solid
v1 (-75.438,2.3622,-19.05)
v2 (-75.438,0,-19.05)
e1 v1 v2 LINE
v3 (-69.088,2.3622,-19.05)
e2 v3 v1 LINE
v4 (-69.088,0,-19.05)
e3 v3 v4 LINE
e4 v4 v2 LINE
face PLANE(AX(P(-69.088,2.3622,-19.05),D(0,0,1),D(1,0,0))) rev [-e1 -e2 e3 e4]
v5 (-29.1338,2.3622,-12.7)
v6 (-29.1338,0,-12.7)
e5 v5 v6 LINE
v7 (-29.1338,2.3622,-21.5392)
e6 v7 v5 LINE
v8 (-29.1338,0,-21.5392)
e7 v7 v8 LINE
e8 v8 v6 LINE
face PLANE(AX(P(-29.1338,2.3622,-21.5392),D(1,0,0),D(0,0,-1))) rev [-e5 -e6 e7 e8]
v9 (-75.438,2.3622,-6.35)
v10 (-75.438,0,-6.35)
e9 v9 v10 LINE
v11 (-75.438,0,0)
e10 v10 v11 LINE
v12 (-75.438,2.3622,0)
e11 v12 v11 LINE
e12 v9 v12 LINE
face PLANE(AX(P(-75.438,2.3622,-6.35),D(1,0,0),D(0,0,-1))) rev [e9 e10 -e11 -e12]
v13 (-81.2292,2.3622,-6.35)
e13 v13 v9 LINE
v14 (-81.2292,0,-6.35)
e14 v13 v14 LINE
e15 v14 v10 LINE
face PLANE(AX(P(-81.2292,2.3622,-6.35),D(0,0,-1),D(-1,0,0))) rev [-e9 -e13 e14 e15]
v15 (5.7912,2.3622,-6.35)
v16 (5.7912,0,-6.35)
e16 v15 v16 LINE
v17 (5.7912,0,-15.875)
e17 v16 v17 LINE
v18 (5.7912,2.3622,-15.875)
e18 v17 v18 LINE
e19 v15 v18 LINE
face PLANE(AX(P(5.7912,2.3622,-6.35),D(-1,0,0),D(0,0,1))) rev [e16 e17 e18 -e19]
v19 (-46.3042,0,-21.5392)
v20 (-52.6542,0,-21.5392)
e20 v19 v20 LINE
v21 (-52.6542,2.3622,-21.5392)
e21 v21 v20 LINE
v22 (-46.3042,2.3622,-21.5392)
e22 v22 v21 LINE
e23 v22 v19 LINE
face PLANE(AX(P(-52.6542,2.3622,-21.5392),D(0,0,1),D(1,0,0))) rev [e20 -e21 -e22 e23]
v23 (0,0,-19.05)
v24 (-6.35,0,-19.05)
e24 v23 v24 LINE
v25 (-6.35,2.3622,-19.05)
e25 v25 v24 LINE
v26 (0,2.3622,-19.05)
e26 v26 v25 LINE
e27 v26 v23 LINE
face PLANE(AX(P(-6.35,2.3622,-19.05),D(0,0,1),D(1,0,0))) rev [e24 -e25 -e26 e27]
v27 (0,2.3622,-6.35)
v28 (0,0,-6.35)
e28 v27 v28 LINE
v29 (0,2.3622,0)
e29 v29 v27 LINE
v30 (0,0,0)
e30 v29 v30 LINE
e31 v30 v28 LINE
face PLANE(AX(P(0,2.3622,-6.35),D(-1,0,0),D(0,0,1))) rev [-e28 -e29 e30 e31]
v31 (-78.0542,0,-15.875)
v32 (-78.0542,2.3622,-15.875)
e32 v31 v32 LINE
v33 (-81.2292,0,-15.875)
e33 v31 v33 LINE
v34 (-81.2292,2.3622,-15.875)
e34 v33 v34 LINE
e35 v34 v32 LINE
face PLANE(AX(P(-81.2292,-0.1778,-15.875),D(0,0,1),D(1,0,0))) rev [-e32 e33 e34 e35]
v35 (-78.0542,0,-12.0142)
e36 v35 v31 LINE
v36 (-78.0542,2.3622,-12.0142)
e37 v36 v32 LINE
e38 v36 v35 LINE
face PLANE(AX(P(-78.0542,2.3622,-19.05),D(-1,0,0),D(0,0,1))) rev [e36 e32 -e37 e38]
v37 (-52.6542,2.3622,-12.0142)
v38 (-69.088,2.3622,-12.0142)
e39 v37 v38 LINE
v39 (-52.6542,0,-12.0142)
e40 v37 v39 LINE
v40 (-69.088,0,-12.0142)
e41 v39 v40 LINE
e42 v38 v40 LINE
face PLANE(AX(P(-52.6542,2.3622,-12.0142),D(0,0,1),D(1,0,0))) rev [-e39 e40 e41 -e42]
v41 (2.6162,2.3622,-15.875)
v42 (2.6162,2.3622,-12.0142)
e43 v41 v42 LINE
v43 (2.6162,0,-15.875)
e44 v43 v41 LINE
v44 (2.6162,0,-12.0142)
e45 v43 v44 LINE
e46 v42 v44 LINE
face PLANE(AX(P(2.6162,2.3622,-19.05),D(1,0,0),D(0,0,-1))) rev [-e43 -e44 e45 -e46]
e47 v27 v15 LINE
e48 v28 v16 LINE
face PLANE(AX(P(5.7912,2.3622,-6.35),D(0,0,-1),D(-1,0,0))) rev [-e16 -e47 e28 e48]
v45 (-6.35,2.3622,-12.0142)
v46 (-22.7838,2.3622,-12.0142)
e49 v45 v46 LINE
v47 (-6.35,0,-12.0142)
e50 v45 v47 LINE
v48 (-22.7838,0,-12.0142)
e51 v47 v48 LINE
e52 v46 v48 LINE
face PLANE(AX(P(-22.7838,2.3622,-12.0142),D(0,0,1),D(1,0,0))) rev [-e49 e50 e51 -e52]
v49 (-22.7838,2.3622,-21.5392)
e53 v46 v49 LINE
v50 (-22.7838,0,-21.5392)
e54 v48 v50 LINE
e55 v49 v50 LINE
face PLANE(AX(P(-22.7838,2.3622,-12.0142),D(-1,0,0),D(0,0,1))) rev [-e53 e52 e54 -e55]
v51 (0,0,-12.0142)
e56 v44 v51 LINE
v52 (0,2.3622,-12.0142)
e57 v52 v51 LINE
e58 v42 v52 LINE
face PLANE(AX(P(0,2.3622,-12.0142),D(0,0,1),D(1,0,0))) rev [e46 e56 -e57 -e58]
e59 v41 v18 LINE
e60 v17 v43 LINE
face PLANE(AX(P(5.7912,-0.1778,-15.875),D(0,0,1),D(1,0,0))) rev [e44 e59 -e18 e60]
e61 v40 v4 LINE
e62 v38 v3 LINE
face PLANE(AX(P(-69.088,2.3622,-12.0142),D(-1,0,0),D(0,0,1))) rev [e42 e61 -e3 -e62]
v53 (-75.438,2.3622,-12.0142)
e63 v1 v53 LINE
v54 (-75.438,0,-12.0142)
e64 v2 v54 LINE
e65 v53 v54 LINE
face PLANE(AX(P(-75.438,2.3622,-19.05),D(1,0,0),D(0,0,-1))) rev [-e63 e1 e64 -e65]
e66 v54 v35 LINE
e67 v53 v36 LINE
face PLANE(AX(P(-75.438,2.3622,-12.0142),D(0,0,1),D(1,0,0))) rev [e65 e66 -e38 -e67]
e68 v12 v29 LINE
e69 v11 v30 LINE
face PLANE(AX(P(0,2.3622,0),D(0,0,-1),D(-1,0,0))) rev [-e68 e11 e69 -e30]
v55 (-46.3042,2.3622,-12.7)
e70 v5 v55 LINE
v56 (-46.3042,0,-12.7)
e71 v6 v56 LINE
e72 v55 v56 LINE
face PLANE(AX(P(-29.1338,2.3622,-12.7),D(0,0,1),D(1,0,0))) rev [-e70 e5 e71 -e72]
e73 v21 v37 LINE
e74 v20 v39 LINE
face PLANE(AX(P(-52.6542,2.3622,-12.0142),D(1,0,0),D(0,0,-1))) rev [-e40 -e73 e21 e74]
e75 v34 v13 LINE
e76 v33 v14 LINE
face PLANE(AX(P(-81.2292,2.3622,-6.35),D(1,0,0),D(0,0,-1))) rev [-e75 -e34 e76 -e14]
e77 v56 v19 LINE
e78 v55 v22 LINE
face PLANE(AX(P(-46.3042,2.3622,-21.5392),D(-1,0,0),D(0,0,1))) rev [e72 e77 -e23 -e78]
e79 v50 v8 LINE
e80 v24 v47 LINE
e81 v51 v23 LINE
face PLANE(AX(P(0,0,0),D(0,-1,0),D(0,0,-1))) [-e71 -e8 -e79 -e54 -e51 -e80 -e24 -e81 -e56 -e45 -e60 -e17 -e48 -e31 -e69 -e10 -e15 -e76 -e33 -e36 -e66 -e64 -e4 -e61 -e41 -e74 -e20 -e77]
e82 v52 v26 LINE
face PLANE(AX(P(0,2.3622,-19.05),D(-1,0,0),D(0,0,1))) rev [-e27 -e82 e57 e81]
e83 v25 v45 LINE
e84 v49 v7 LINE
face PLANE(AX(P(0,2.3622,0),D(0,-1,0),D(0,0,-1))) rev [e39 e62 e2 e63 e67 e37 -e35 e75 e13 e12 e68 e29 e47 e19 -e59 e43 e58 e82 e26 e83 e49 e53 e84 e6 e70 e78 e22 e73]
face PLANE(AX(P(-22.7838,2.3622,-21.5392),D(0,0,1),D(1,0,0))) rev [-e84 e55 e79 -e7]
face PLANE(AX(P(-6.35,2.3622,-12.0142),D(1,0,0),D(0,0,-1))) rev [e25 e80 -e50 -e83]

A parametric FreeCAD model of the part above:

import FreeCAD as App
import Part
import Sketcher

V = App.Vector
Q = App.Units.Quantity

doc = App.newDocument("Part")
params = doc.addObject("Spreadsheet::Sheet", "Params")
for row, (alias, value) in enumerate([
    ("sketch1_height", "0.5 in"),
    ("sketch1_width", "0.25 in"),
    ("sketch1_width2", "2.97 in"),
    ("sketch1_width3", "0.125 in"),
    ("sketch1_width4", "0.103 in"),
    ("pad1_length", "0.093 in"),
    ("sketch2_width", "0.125 in"),
    ("pocket1_length", "0.1 in"),
], start=1):
    params.set(f"A{row}", alias)
    params.set(f"B{row}", "=" + value)
    params.setAlias(f"B{row}", alias)

body = doc.addObject("PartDesign::Body", "Body")

sketch1 = body.newObject("Sketcher::SketchObject", "Sketch")
sketch1.AttachmentSupport = (doc.getObject("XZ_Plane"), [""])
sketch1.MapMode = "FlatFace"
sketch1.addGeometry([
    Part.LineSegment(V(5.8, -6.3, 0), V(5.8, -19.1, 0)),
    Part.LineSegment(V(5.8, -19.1, 0), V(2.6, -19.1, 0)),
    Part.LineSegment(V(2.6, -19.1, 0), V(2.6, -12, 0)),
    Part.LineSegment(V(2.6, -12, 0), V(0, -12, 0)),
    Part.LineSegment(V(0, -12, 0), V(0, -19.1, 0)),
    Part.LineSegment(V(0, -19.1, 0), V(-6.3, -19.1, 0)),
    Part.LineSegment(V(-6.3, -19.1, 0), V(-6.3, -12, 0)),
    Part.LineSegment(V(-6.3, -12, 0), V(-22.8, -12, 0)),
    Part.LineSegment(V(-22.8, -12, 0), V(-22.8, -21.5, 0)),
    Part.LineSegment(V(-22.8, -21.5, 0), V(-29.1, -21.5, 0)),
    Part.LineSegment(V(-29.1, -21.5, 0), V(-29.1, -12.7, 0)),
    Part.LineSegment(V(-29.1, -12.7, 0), V(-46.3, -12.7, 0)),
    Part.LineSegment(V(-46.3, -12.7, 0), V(-46.3, -21.5, 0)),
    Part.LineSegment(V(-46.3, -21.5, 0), V(-52.7, -21.5, 0)),
    Part.LineSegment(V(-52.7, -21.5, 0), V(-52.7, -12, 0)),
    Part.LineSegment(V(-52.7, -12, 0), V(-69.1, -12, 0)),
    Part.LineSegment(V(-69.1, -12, 0), V(-69.1, -19.1, 0)),
    Part.LineSegment(V(-69.1, -19.1, 0), V(-75.4, -19.1, 0)),
    Part.LineSegment(V(-75.4, -19.1, 0), V(-75.4, -12, 0)),
    Part.LineSegment(V(-75.4, -12, 0), V(-78.1, -12, 0)),
    Part.LineSegment(V(-78.1, -12, 0), V(-78.1, -19.1, 0)),
    Part.LineSegment(V(-78.1, -19.1, 0), V(-81.2, -19.1, 0)),
    Part.LineSegment(V(-81.2, -19.1, 0), V(-81.2, -6.3, 0)),
    Part.LineSegment(V(-81.2, -6.3, 0), V(-75.4, -6.3, 0)),
    Part.LineSegment(V(-75.4, -6.3, 0), V(-75.4, 0, 0)),
    Part.LineSegment(V(-75.4, 0, 0), V(0, 0, 0)),
    Part.LineSegment(V(0, 0, 0), V(0, -6.3, 0)),
    Part.LineSegment(V(0, -6.3, 0), V(5.8, -6.3, 0)),
], False)
sketch1.addConstraint([
    Sketcher.Constraint("Coincident", 0, 2, 1, 1),
    Sketcher.Constraint("Coincident", 1, 2, 2, 1),
    Sketcher.Constraint("Coincident", 2, 2, 3, 1),
    Sketcher.Constraint("Coincident", 3, 2, 4, 1),
    Sketcher.Constraint("Coincident", 4, 2, 5, 1),
    Sketcher.Constraint("Coincident", 5, 2, 6, 1),
    Sketcher.Constraint("Coincident", 6, 2, 7, 1),
    Sketcher.Constraint("Coincident", 7, 2, 8, 1),
    Sketcher.Constraint("Coincident", 8, 2, 9, 1),
    Sketcher.Constraint("Coincident", 9, 2, 10, 1),
    Sketcher.Constraint("Coincident", 10, 2, 11, 1),
    Sketcher.Constraint("Coincident", 11, 2, 12, 1),
    Sketcher.Constraint("Coincident", 12, 2, 13, 1),
    Sketcher.Constraint("Coincident", 13, 2, 14, 1),
    Sketcher.Constraint("Coincident", 14, 2, 15, 1),
    Sketcher.Constraint("Coincident", 15, 2, 16, 1),
    Sketcher.Constraint("Coincident", 16, 2, 17, 1),
    Sketcher.Constraint("Coincident", 17, 2, 18, 1),
    Sketcher.Constraint("Coincident", 18, 2, 19, 1),
    Sketcher.Constraint("Coincident", 19, 2, 20, 1),
    Sketcher.Constraint("Coincident", 20, 2, 21, 1),
    Sketcher.Constraint("Coincident", 21, 2, 22, 1),
    Sketcher.Constraint("Coincident", 22, 2, 23, 1),
    Sketcher.Constraint("Coincident", 23, 2, 24, 1),
    Sketcher.Constraint("Coincident", 24, 2, 25, 1),
    Sketcher.Constraint("Coincident", 25, 2, 26, 1),
    Sketcher.Constraint("Coincident", 26, 2, 27, 1),
    Sketcher.Constraint("Coincident", 27, 2, 0, 1),
    Sketcher.Constraint("Vertical", 0),
    Sketcher.Constraint("Horizontal", 1),
    Sketcher.Constraint("Vertical", 2),
    Sketcher.Constraint("Horizontal", 3),
    Sketcher.Constraint("Vertical", 4),
    Sketcher.Constraint("Horizontal", 5),
    Sketcher.Constraint("Vertical", 6),
    Sketcher.Constraint("Horizontal", 7),
    Sketcher.Constraint("Vertical", 8),
    Sketcher.Constraint("Horizontal", 9),
    Sketcher.Constraint("Vertical", 10),
    Sketcher.Constraint("Horizontal", 11),
    Sketcher.Constraint("Vertical", 12),
    Sketcher.Constraint("Horizontal", 13),
    Sketcher.Constraint("Vertical", 14),
    Sketcher.Constraint("Horizontal", 15),
    Sketcher.Constraint("Vertical", 16),
    Sketcher.Constraint("Horizontal", 17),
    Sketcher.Constraint("Vertical", 18),
    Sketcher.Constraint("Horizontal", 19),
    Sketcher.Constraint("Vertical", 20),
    Sketcher.Constraint("Horizontal", 21),
    Sketcher.Constraint("Vertical", 22),
    Sketcher.Constraint("Horizontal", 23),
    Sketcher.Constraint("Vertical", 24),
    Sketcher.Constraint("Horizontal", 25),
    Sketcher.Constraint("Vertical", 26),
    Sketcher.Constraint("Horizontal", 27),
    Sketcher.Constraint("Coincident", 25, 2, -1, 1),
    Sketcher.Constraint("PointOnObject", 3, 2, -2),
    Sketcher.Constraint("Horizontal", 1, 2, 4, 2),
    Sketcher.Constraint("Horizontal", 3, 2, 6, 2),
    Sketcher.Constraint("Horizontal", 9, 2, 12, 2),
    Sketcher.Constraint("Horizontal", 7, 2, 14, 2),
    Sketcher.Constraint("Horizontal", 5, 2, 16, 2),
    Sketcher.Constraint("Horizontal", 15, 2, 18, 2),
    Sketcher.Constraint("Horizontal", 17, 2, 20, 2),
    Sketcher.Constraint("Horizontal", 23, 2, 26, 2),
    Sketcher.Constraint("Vertical", 18, 2, 23, 2),
    Sketcher.Constraint("Equal", 5, 9),
    Sketcher.Constraint("Equal", 9, 13),
    Sketcher.Constraint("Equal", 7, 15),
    Sketcher.Constraint("Equal", 13, 17),
    Sketcher.Constraint("Equal", 3, 19),
    Sketcher.Constraint("Equal", 1, 21),
    Sketcher.Constraint("Equal", 17, 24),
    Sketcher.Constraint("DistanceY", 0, 2, 0, 1, Q("0.5 in")),
    Sketcher.Constraint("DistanceX", 7, 2, 2, 2, Q("1 in")),
    Sketcher.Constraint("DistanceX", 5, 2, 5, 1, Q("0.25 in")),
    Sketcher.Constraint("DistanceX", 25, 1, 25, 2, Q("2.97 in")),
    Sketcher.Constraint("DistanceY", 10, 2, -1, 1, Q("0.5 in")),
    Sketcher.Constraint("DistanceX", 1, 2, 1, 1, Q("0.125 in")),
    Sketcher.Constraint("DistanceX", 3, 2, 3, 1, Q("0.103 in")),
    Sketcher.Constraint("DistanceY", 2, 1, 2, 2, Q("0.277 in")),
    Sketcher.Constraint("DistanceY", 8, 2, 8, 1, Q("0.375 in")),
])
sketch1.setExpression("Constraints[74]", "Params.sketch1_height")
sketch1.setExpression("Constraints[76]", "Params.sketch1_width")
sketch1.setExpression("Constraints[77]", "Params.sketch1_width2")
sketch1.setExpression("Constraints[79]", "Params.sketch1_width3")
sketch1.setExpression("Constraints[80]", "Params.sketch1_width4")
pad1 = body.newObject("PartDesign::Pad", "Pad")
pad1.Profile = sketch1
pad1.setExpression("Length", "Params.pad1_length")
pad1.Reversed = True

sketch2 = body.newObject("Sketcher::SketchObject", "Sketch001")
sketch2.AttachmentSupport = (doc.getObject("XZ_Plane"), [""])
sketch2.MapMode = "FlatFace"
sketch2.AttachmentOffset = App.Placement(V(0, 0, -0.093 * 25.4), App.Rotation())
sketch2.addGeometry([
    Part.LineSegment(V(2.6, -19.1, 0), V(2.6, -15.9, 0)),
    Part.LineSegment(V(2.6, -15.9, 0), V(5.8, -15.9, 0)),
    Part.LineSegment(V(5.8, -15.9, 0), V(5.8, -19.1, 0)),
    Part.LineSegment(V(5.8, -19.1, 0), V(2.6, -19.1, 0)),
    Part.LineSegment(V(-81.2, -19.1, 0), V(-81.2, -15.9, 0)),
    Part.LineSegment(V(-81.2, -15.9, 0), V(-78.1, -15.9, 0)),
    Part.LineSegment(V(-78.1, -15.9, 0), V(-78.1, -19.1, 0)),
    Part.LineSegment(V(-78.1, -19.1, 0), V(-81.2, -19.1, 0)),
], False)
sketch2.addConstraint([
    Sketcher.Constraint("Coincident", 0, 2, 1, 1),
    Sketcher.Constraint("Coincident", 1, 2, 2, 1),
    Sketcher.Constraint("Coincident", 2, 2, 3, 1),
    Sketcher.Constraint("Coincident", 3, 2, 0, 1),
    Sketcher.Constraint("Coincident", 4, 2, 5, 1),
    Sketcher.Constraint("Coincident", 5, 2, 6, 1),
    Sketcher.Constraint("Coincident", 6, 2, 7, 1),
    Sketcher.Constraint("Coincident", 7, 2, 4, 1),
    Sketcher.Constraint("Vertical", 0),
    Sketcher.Constraint("Horizontal", 1),
    Sketcher.Constraint("Vertical", 2),
    Sketcher.Constraint("Horizontal", 3),
    Sketcher.Constraint("Vertical", 4),
    Sketcher.Constraint("Horizontal", 5),
    Sketcher.Constraint("Vertical", 6),
    Sketcher.Constraint("Horizontal", 7),
    Sketcher.Constraint("Horizontal", 1, 2, 4, 2),
    Sketcher.Constraint("Horizontal", 3, 2, 6, 2),
    Sketcher.Constraint("Equal", 3, 5),
    Sketcher.Constraint("Equal", 7, 0),
    Sketcher.Constraint("DistanceX", 1, 1, 1, 2, Q("0.125 in")),
    Sketcher.Constraint("DistanceY", 2, 2, -1, 1, Q("0.75 in")),
    Sketcher.Constraint("DistanceX", -1, 1, 0, 2, Q("0.103 in")),
    Sketcher.Constraint("DistanceX", 4, 2, -1, 1, Q("3.198 in")),
])
sketch2.setExpression("Constraints[20]", "Params.sketch2_width")
pocket1 = body.newObject("PartDesign::Pocket", "Pocket")
pocket1.Profile = sketch2
pocket1.setExpression("Length", "Params.pocket1_length")
pocket1.Reversed = True

doc.recompute()
